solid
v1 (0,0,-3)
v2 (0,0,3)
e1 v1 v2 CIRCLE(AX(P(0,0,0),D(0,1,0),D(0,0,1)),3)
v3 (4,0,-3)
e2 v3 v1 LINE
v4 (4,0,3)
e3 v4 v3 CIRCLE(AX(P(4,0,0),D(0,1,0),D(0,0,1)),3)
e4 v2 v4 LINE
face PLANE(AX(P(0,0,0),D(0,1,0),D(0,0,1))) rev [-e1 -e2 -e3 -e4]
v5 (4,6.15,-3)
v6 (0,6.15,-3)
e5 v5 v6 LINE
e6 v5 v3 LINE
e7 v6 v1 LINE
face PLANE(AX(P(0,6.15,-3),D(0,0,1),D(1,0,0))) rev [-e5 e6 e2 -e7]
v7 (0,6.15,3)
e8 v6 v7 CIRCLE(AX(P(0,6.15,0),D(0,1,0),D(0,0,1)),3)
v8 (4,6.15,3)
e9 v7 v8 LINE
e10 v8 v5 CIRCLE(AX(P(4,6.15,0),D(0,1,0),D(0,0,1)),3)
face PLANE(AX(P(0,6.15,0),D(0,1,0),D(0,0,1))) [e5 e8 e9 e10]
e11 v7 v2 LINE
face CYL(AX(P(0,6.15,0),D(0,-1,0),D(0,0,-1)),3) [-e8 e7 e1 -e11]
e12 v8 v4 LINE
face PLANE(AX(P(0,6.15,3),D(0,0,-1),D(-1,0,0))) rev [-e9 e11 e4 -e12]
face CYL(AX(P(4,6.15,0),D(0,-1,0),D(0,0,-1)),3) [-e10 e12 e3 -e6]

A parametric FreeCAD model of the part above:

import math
import FreeCAD as App
import Part
import Sketcher

V = App.Vector

doc = App.newDocument("Part")
params = doc.addObject("Spreadsheet::Sheet", "Params")
for row, (alias, value) in enumerate([
    ("sketch1_radius", "3 mm"),
    ("sketch1_width", "4 mm"),
    ("pad1_length", "6.15 mm"),
], start=1):
    params.set(f"A{row}", alias)
    params.set(f"B{row}", "=" + value)
    params.setAlias(f"B{row}", alias)

body = doc.addObject("PartDesign::Body", "Body")

# Sketch on XZ plane
sketch1 = body.newObject("Sketcher::SketchObject", "Sketch")
sketch1.AttachmentSupport = (doc.getObject("XZ_Plane"), [""])
sketch1.MapMode = "FlatFace"
sketch1.addGeometry([
    Part.LineSegment(V(4, -3, 0), V(0, -3, 0)),
    Part.ArcOfCircle(Part.Circle(V(0, 0, 0), V(0, 0, 1), 3), math.radians(90), math.radians(270)),
    Part.LineSegment(V(0, 3, 0), V(4, 3, 0)),
    Part.ArcOfCircle(Part.Circle(V(4, 0, 0), V(0, 0, 1), 3), math.radians(-90), math.radians(90)),
], False)
sketch1.addConstraint([
    Sketcher.Constraint("Tangent", 0, 2, 1, 2),
    Sketcher.Constraint("Tangent", 1, 1, 2, 1),
    Sketcher.Constraint("Tangent", 2, 2, 3, 2),
    Sketcher.Constraint("Tangent", 3, 1, 0, 1),
    Sketcher.Constraint("Horizontal", 0),
    Sketcher.Constraint("Horizontal", 2),
    Sketcher.Constraint("Coincident", 1, 3, -1, 1),
    Sketcher.Constraint("Radius", 1, 3.0),
    Sketcher.Constraint("DistanceX", 0, 2, 0, 1, 4.0),
])
sketch1.setExpression("Constraints[7]", "Params.sketch1_radius")
sketch1.setExpression("Constraints[8]", "Params.sketch1_width")
pad1 = body.newObject("PartDesign::Pad", "Pad")
pad1.Profile = sketch1
pad1.setExpression("Length", "Params.pad1_length")
pad1.Reversed = True

doc.recompute()
